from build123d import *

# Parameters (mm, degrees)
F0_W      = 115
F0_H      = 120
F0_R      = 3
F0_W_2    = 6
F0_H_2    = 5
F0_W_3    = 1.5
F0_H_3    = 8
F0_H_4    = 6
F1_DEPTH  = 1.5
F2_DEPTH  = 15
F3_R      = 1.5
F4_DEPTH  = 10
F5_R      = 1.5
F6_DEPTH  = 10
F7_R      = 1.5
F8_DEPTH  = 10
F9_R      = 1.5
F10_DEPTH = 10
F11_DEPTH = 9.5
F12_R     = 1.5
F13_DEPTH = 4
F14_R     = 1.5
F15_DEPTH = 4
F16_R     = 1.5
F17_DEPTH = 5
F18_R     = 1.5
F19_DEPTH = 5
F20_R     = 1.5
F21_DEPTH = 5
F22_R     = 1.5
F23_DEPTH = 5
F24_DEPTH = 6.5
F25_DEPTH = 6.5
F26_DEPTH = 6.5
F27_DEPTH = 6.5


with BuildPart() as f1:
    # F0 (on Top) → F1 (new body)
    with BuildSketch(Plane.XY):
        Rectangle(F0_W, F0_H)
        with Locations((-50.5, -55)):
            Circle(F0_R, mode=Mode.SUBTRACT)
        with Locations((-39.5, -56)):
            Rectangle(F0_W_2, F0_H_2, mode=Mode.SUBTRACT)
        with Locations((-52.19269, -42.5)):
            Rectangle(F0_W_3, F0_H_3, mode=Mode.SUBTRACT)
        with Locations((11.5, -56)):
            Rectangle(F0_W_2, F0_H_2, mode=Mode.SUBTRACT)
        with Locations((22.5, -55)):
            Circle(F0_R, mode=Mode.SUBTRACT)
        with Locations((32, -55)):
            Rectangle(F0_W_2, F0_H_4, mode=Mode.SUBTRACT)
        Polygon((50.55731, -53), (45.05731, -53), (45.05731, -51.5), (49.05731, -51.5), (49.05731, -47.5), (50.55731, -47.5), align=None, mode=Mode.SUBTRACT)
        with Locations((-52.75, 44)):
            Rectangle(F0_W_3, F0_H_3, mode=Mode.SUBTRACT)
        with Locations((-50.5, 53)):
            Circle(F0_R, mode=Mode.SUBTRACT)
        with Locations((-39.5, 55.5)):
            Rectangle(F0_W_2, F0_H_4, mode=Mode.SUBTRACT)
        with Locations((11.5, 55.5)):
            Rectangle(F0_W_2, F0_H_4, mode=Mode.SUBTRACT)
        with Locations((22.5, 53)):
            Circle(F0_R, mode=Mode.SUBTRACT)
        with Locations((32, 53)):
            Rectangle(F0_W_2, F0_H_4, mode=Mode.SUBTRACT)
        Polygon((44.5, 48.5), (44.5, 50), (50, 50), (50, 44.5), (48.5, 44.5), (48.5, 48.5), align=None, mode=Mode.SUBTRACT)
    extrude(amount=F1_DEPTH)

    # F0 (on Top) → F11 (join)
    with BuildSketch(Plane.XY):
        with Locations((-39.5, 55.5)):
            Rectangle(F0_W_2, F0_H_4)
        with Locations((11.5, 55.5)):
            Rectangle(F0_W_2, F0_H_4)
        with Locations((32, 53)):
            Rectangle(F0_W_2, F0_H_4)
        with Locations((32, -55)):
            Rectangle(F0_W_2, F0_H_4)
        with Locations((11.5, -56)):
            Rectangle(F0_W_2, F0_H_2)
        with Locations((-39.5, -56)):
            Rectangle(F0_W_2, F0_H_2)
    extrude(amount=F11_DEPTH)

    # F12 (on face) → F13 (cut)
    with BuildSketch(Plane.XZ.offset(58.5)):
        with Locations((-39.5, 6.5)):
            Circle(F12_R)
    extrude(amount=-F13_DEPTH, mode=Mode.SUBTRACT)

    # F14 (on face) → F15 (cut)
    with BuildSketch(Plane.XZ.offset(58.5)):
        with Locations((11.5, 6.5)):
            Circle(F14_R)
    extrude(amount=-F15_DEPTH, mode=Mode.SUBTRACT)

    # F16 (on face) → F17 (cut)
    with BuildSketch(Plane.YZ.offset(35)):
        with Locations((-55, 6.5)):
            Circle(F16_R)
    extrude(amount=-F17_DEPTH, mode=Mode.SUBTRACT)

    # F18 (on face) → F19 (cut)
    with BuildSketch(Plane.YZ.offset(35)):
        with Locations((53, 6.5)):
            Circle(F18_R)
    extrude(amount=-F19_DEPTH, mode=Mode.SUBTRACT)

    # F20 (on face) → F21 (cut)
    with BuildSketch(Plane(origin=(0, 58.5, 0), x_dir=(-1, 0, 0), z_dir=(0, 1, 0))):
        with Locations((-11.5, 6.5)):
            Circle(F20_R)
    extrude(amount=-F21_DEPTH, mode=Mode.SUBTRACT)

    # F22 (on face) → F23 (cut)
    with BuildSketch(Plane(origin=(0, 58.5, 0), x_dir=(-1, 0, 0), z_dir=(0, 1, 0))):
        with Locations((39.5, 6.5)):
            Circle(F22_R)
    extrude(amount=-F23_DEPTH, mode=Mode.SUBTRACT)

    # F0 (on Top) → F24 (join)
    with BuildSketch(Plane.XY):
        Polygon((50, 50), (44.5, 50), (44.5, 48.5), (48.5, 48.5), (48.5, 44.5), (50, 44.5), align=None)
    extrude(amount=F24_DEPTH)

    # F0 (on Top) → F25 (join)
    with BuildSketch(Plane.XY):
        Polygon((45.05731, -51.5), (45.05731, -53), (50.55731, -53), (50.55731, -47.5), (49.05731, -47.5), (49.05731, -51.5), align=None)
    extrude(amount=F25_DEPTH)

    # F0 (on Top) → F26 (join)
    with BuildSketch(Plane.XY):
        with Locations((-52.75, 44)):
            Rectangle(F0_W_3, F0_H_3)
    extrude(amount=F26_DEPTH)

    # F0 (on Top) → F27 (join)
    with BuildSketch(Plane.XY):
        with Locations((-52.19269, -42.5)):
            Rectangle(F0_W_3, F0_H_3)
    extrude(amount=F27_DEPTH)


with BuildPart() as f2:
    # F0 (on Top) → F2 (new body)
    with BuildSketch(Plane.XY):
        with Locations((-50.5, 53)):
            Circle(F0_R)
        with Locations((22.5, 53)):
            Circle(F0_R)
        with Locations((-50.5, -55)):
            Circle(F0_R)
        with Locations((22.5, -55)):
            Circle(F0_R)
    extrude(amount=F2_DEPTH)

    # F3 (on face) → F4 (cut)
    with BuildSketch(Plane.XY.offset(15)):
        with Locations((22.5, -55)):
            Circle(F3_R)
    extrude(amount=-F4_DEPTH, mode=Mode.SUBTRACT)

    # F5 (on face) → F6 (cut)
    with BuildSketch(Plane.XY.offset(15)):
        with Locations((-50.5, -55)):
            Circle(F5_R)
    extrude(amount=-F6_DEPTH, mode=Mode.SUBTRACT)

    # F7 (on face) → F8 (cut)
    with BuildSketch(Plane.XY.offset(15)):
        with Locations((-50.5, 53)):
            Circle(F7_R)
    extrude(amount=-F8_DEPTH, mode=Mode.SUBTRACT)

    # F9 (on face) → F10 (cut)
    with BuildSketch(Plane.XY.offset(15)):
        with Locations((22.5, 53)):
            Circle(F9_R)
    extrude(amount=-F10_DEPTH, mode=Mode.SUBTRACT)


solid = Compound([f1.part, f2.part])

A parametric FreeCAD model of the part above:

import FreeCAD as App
import Part
import Sketcher


def add_polygon(sketch, points):
    """Adds a closed chain of lines whose ends are joined by coincident constraints."""
    first, n = sketch.GeometryCount, len(points)
    for a, b in zip(points, points[1:] + points[:1]):
        sketch.addGeometry(Part.LineSegment(App.Vector(*a, 0), App.Vector(*b, 0)), False)
    for i in range(n):
        sketch.addConstraint(Sketcher.Constraint("Coincident", first + i, 2, first + (i + 1) % n, 1))

doc = App.newDocument("Part")
body = doc.addObject("PartDesign::Body", "Body")

sketch1 = body.newObject("Sketcher::SketchObject", "Sketch")
sketch1.AttachmentSupport = (doc.getObject("XY_Plane"), [""])
sketch1.MapMode = "FlatFace"
add_polygon(sketch1, [(-57.5, 60), (-57.5, -60), (57.5, -60), (57.5, 60)])
sketch1.addGeometry(Part.Circle(App.Vector(-50.5, -55, 0), App.Vector(0, 0, 1), 3), False)
add_polygon(sketch1, [(-36.5, -58.5), (-42.5, -58.5), (-42.5, -53.5), (-36.5, -53.5)])
add_polygon(sketch1, [(-51.4, -46.5), (-52.9, -46.5), (-52.9, -38.5), (-51.4, -38.5)])
add_polygon(sketch1, [(14.5, -58.5), (8.5, -58.5), (8.5, -53.5), (14.5, -53.5)])
sketch1.addGeometry(Part.Circle(App.Vector(22.5, -55, 0), App.Vector(0, 0, 1), 3), False)
add_polygon(sketch1, [(35, -58), (29, -58), (29, -52), (35, -52)])
add_polygon(sketch1, [(50.6, -47.5), (50.6, -53), (45.1, -53), (45.1, -51.5), (49.1, -51.5), (49.1, -47.5)])
add_polygon(sketch1, [(-52, 40), (-53.5, 40), (-53.5, 48), (-52, 48)])
sketch1.addGeometry(Part.Circle(App.Vector(-50.5, 53, 0), App.Vector(0, 0, 1), 3), False)
add_polygon(sketch1, [(-36.5, 52.5), (-42.5, 52.5), (-42.5, 58.5), (-36.5, 58.5)])
add_polygon(sketch1, [(14.5, 52.5), (8.5, 52.5), (8.5, 58.5), (14.5, 58.5)])
sketch1.addGeometry(Part.Circle(App.Vector(22.5, 53, 0), App.Vector(0, 0, 1), 3), False)
add_polygon(sketch1, [(35, 50), (29, 50), (29, 56), (35, 56)])
add_polygon(sketch1, [(48.5, 48.5), (44.5, 48.5), (44.5, 50), (50, 50), (50, 44.5), (48.5, 44.5)])
sketch1.addConstraint([
    Sketcher.Constraint("Vertical", 0),
    Sketcher.Constraint("Horizontal", 1),
    Sketcher.Constraint("Vertical", 2),
    Sketcher.Constraint("Horizontal", 3),
    Sketcher.Constraint("Horizontal", 5),
    Sketcher.Constraint("Vertical", 6),
    Sketcher.Constraint("Horizontal", 7),
    Sketcher.Constraint("Vertical", 8),
    Sketcher.Constraint("Horizontal", 9),
    Sketcher.Constraint("Vertical", 10),
    Sketcher.Constraint("Horizontal", 11),
    Sketcher.Constraint("Vertical", 12),
    Sketcher.Constraint("Horizontal", 13),
    Sketcher.Constraint("Vertical", 14),
    Sketcher.Constraint("Horizontal", 15),
    Sketcher.Constraint("Vertical", 16),
    Sketcher.Constraint("Horizontal", 18),
    Sketcher.Constraint("Vertical", 19),
    Sketcher.Constraint("Horizontal", 20),
    Sketcher.Constraint("Vertical", 21),
    Sketcher.Constraint("Vertical", 22),
    Sketcher.Constraint("Horizontal", 23),
    Sketcher.Constraint("Vertical", 24),
    Sketcher.Constraint("Horizontal", 25),
    Sketcher.Constraint("Vertical", 26),
    Sketcher.Constraint("Horizontal", 27),
    Sketcher.Constraint("Horizontal", 28),
    Sketcher.Constraint("Vertical", 29),
    Sketcher.Constraint("Horizontal", 30),
    Sketcher.Constraint("Vertical", 31),
    Sketcher.Constraint("Horizontal", 33),
    Sketcher.Constraint("Vertical", 34),
    Sketcher.Constraint("Horizontal", 35),
    Sketcher.Constraint("Vertical", 36),
    Sketcher.Constraint("Horizontal", 37),
    Sketcher.Constraint("Vertical", 38),
    Sketcher.Constraint("Horizontal", 39),
    Sketcher.Constraint("Vertical", 40),
    Sketcher.Constraint("Horizontal", 42),
    Sketcher.Constraint("Vertical", 43),
    Sketcher.Constraint("Horizontal", 44),
    Sketcher.Constraint("Vertical", 45),
    Sketcher.Constraint("Horizontal", 46),
    Sketcher.Constraint("Vertical", 47),
    Sketcher.Constraint("Horizontal", 48),
    Sketcher.Constraint("Vertical", 49),
    Sketcher.Constraint("Horizontal", 50),
    Sketcher.Constraint("Vertical", 51),
    Sketcher.Constraint("Equal", 4, 17),
    Sketcher.Constraint("Equal", 17, 32),
    Sketcher.Constraint("Equal", 32, 41),
    Sketcher.Constraint("Symmetric", 0, 2, 2, 2, -1, 1),
    Sketcher.Constraint("Symmetric", 5, 2, 34, 2, -1),
    Sketcher.Constraint("Symmetric", 13, 2, 38, 2, -1),
    Sketcher.Constraint("Horizontal", 4, 3, 17, 3),
    Sketcher.Constraint("Horizontal", 32, 3, 41, 3),
    Sketcher.Constraint("Horizontal", 8, 2, 13, 2),
    Sketcher.Constraint("Horizontal", 7, 2, 14, 2),
    Sketcher.Constraint("Horizontal", 36, 2, 37, 2),
    Sketcher.Constraint("Horizontal", 45, 2, 47, 2),
    Sketcher.Constraint("Vertical", 4, 3, 32, 3),
    Sketcher.Constraint("Vertical", 17, 3, 41, 3),
    Sketcher.Constraint("Vertical", 8, 2, 35, 2),
    Sketcher.Constraint("Vertical", 16, 2, 39, 2),
    Sketcher.Constraint("Vertical", 19, 2, 42, 2),
    Sketcher.Constraint("Vertical", 21, 2, 44, 2),
    Sketcher.Constraint("Equal", 7, 13),
    Sketcher.Constraint("Equal", 15, 18),
    Sketcher.Constraint("Equal", 11, 27),
    Sketcher.Constraint("Equal", 27, 28),
    Sketcher.Constraint("Equal", 25, 46),
    Sketcher.Constraint("Equal", 23, 48),
    Sketcher.Constraint("Equal", 44, 19),
    Sketcher.Constraint("Equal", 48, 22),
    Sketcher.Constraint("Equal", 50, 24),
    Sketcher.Constraint("Equal", 12, 29),
    Sketcher.Constraint("Equal", 21, 34),
    Sketcher.Constraint("Equal", 40, 43),
    Sketcher.Constraint("Equal", 24, 47),
    Sketcher.Constraint("Equal", 22, 49),
    Sketcher.Constraint("Diameter", 4, 6.0),
    Sketcher.Constraint("DistanceX", 1, 1, 1, 2, 115.0),
    Sketcher.Constraint("DistanceX", 5, 2, 5, 1, 6.0),
    Sketcher.Constraint("DistanceX", 25, 1, 25, 2, 4.0),
    Sketcher.Constraint("DistanceY", 0, 2, 0, 1, 120.0),
    Sketcher.Constraint("DistanceY", 6, 1, 6, 2, 5.0),
    Sketcher.Constraint("DistanceY", 10, 1, 10, 2, 8.0),
    Sketcher.Constraint("DistanceX", 9, 2, 9, 1, 1.5),
    Sketcher.Constraint("DistanceY", 4, 3, -1, 1, 55.0),
    Sketcher.Constraint("DistanceY", -1, 1, 32, 3, 53.0),
    Sketcher.Constraint("DistanceX", -1, 1, 18, 2, 29.0),
    Sketcher.Constraint("DistanceY", 18, 2, -1, 1, 58.0),
    Sketcher.Constraint("DistanceY", 22, 2, -1, 1, 53.0),
    Sketcher.Constraint("DistanceY", -1, 1, 28, 2, 40.0),
    Sketcher.Constraint("DistanceX", 30, 2, -1, 1, 52.0),
    Sketcher.Constraint("DistanceY", -1, 1, 42, 2, 50.0),
    Sketcher.Constraint("DistanceX", -1, 1, 48, 2, 50.0),
    Sketcher.Constraint("DistanceX", 4, 3, 17, 3, 73.0),
    Sketcher.Constraint("DistanceX", 0, 2, 4, 3, 7.0),
    Sketcher.Constraint("DistanceX", 4, 3, 5, 2, 8.0),
    Sketcher.Constraint("DistanceY", 6, 2, 9, 2, 7.0),
    Sketcher.Constraint("DistanceX", 13, 2, 17, 3, 14.0),
    Sketcher.Constraint("DistanceY", 5, 2, -1, 1, 58.5),
    Sketcher.Constraint("DistanceX", 9, 2, -1, 1, 52.94269),
    Sketcher.Constraint("DistanceX", -1, 1, 22, 2, 50.55731),
])
pad1 = body.newObject("PartDesign::Pad", "Pad")
pad1.Profile = sketch1
pad1.Length = 1.5

sketch2 = body.newObject("Sketcher::SketchObject", "Sketch001")
sketch2.AttachmentSupport = (doc.getObject("XY_Plane"), [""])
sketch2.MapMode = "FlatFace"
add_polygon(sketch2, [(-42, 58), (-42, 52), (-36, 52), (-36, 58)])
add_polygon(sketch2, [(8, 58), (8, 52), (14, 52), (14, 58)])
add_polygon(sketch2, [(29, 56), (29, 50), (35, 50), (35, 56)])
add_polygon(sketch2, [(29, -52), (29, -58), (35, -58), (35, -52)])
add_polygon(sketch2, [(8, -54), (8, -58), (14, -58), (14, -54)])
add_polygon(sketch2, [(-42, -54), (-42, -58), (-36, -58), (-36, -54)])
sketch2.addConstraint([
    Sketcher.Constraint("Vertical", 0),
    Sketcher.Constraint("Horizontal", 1),
    Sketcher.Constraint("Vertical", 2),
    Sketcher.Constraint("Horizontal", 3),
    Sketcher.Constraint("Vertical", 4),
    Sketcher.Constraint("Horizontal", 5),
    Sketcher.Constraint("Vertical", 6),
    Sketcher.Constraint("Horizontal", 7),
    Sketcher.Constraint("Vertical", 8),
    Sketcher.Constraint("Horizontal", 9),
    Sketcher.Constraint("Vertical", 10),
    Sketcher.Constraint("Horizontal", 11),
    Sketcher.Constraint("Vertical", 12),
    Sketcher.Constraint("Horizontal", 13),
    Sketcher.Constraint("Vertical", 14),
    Sketcher.Constraint("Horizontal", 15),
    Sketcher.Constraint("Vertical", 16),
    Sketcher.Constraint("Horizontal", 17),
    Sketcher.Constraint("Vertical", 18),
    Sketcher.Constraint("Horizontal", 19),
    Sketcher.Constraint("Vertical", 20),
    Sketcher.Constraint("Horizontal", 21),
    Sketcher.Constraint("Vertical", 22),
    Sketcher.Constraint("Horizontal", 23),
    Sketcher.Constraint("Symmetric", 7, 2, 16, 2, -1),
    Sketcher.Constraint("Symmetric", 3, 2, 20, 2, -1),
    Sketcher.Constraint("Horizontal", 1, 2, 4, 2),
    Sketcher.Constraint("Horizontal", 3, 2, 6, 2),
    Sketcher.Constraint("Horizontal", 19, 2, 22, 2),
    Sketcher.Constraint("Vertical", 11, 2, 12, 2),
    Sketcher.Constraint("Vertical", 10, 2, 13, 2),
    Sketcher.Constraint("Vertical", 6, 2, 17, 2),
    Sketcher.Constraint("Vertical", 2, 2, 21, 2),
    Sketcher.Constraint("Equal", 3, 5),
    Sketcher.Constraint("Equal", 7, 9),
    Sketcher.Constraint("Equal", 23, 0),
    Sketcher.Constraint("Equal", 6, 8),
    Sketcher.Constraint("Equal", 10, 12),
    Sketcher.Constraint("DistanceX", 1, 1, 1, 2, 6.0),
    Sketcher.Constraint("DistanceY", 16, 2, 16, 1, 5.0),
    Sketcher.Constraint("DistanceX", -1, 1, 8, 2, 29.0),
    Sketcher.Constraint("DistanceY", -1, 1, 8, 2, 50.0),
    Sketcher.Constraint("DistanceY", 12, 2, -1, 1, 58.0),
    Sketcher.Constraint("DistanceX", 1, 2, 4, 2, 45.0),
    Sketcher.Constraint("DistanceX", 0, 2, -1, 1, 42.5),
    Sketcher.Constraint("DistanceY", -1, 1, 0, 2, 52.5),
])
pad2 = body.newObject("PartDesign::Pad", "Pad001")
pad2.Profile = sketch2
pad2.Length = 9.5

sketch3 = body.newObject("Sketcher::SketchObject", "Sketch002")
sketch3.AttachmentSupport = (doc.getObject("XZ_Plane"), [""])
sketch3.MapMode = "FlatFace"
sketch3.AttachmentOffset = App.Placement(App.Vector(0, 0, 58.5), App.Rotation())
sketch3.addGeometry(Part.Circle(App.Vector(-39.5, 6.5, 0), App.Vector(0, 0, 1), 1.5), False)
sketch3.addConstraint([
    Sketcher.Constraint("Diameter", 0, 3.0),
    Sketcher.Constraint("DistanceX", 0, 3, -1, 1, 39.5),
    Sketcher.Constraint("DistanceY", -1, 1, 0, 3, 6.5),
])
pocket1 = body.newObject("PartDesign::Pocket", "Pocket")
pocket1.Profile = sketch3
pocket1.Length = 4

sketch4 = body.newObject("Sketcher::SketchObject", "Sketch003")
sketch4.AttachmentSupport = (doc.getObject("XZ_Plane"), [""])
sketch4.MapMode = "FlatFace"
sketch4.AttachmentOffset = App.Placement(App.Vector(0, 0, 58.5), App.Rotation())
sketch4.addGeometry(Part.Circle(App.Vector(11.5, 6.5, 0), App.Vector(0, 0, 1), 1.5), False)
sketch4.addConstraint([
    Sketcher.Constraint("Diameter", 0, 3.0),
    Sketcher.Constraint("DistanceX", -1, 1, 0, 3, 11.5),
    Sketcher.Constraint("DistanceY", -1, 1, 0, 3, 6.5),
])
pocket2 = body.newObject("PartDesign::Pocket", "Pocket001")
pocket2.Profile = sketch4
pocket2.Length = 4

sketch5 = body.newObject("Sketcher::SketchObject", "Sketch004")
sketch5.AttachmentSupport = (doc.getObject("YZ_Plane"), [""])
sketch5.MapMode = "FlatFace"
sketch5.AttachmentOffset = App.Placement(App.Vector(0, 0, 35), App.Rotation())
sketch5.addGeometry(Part.Circle(App.Vector(-55, 6.5, 0), App.Vector(0, 0, 1), 1.5), False)
sketch5.addConstraint([
    Sketcher.Constraint("Diameter", 0, 3.0),
    Sketcher.Constraint("DistanceX", 0, 3, -1, 1, 55.0),
    Sketcher.Constraint("DistanceY", -1, 1, 0, 3, 6.5),
])
pocket3 = body.newObject("PartDesign::Pocket", "Pocket002")
pocket3.Profile = sketch5
pocket3.Length = 5

sketch6 = body.newObject("Sketcher::SketchObject", "Sketch005")
sketch6.AttachmentSupport = (doc.getObject("YZ_Plane"), [""])
sketch6.MapMode = "FlatFace"
sketch6.AttachmentOffset = App.Placement(App.Vector(0, 0, 35), App.Rotation())
sketch6.addGeometry(Part.Circle(App.Vector(53, 6.5, 0), App.Vector(0, 0, 1), 1.5), False)
sketch6.addConstraint([
    Sketcher.Constraint("Diameter", 0, 3.0),
    Sketcher.Constraint("DistanceX", -1, 1, 0, 3, 53.0),
    Sketcher.Constraint("DistanceY", -1, 1, 0, 3, 6.5),
])
pocket4 = body.newObject("PartDesign::Pocket", "Pocket003")
pocket4.Profile = sketch6
pocket4.Length = 5

sketch7 = body.newObject("Sketcher::SketchObject", "Sketch006")
sketch7.AttachmentSupport = (doc.getObject("XZ_Plane"), [""])
sketch7.MapMode = "FlatFace"
sketch7.AttachmentOffset = App.Placement(App.Vector(0, 0, -58.5), App.Rotation())
sketch7.addGeometry(Part.Circle(App.Vector(11.5, 6.5, 0), App.Vector(0, 0, 1), 1.5), False)
sketch7.addConstraint([
    Sketcher.Constraint("Diameter", 0, 3.0),
    Sketcher.Constraint("DistanceX", -1, 1, 0, 3, 11.5),
    Sketcher.Constraint("DistanceY", -1, 1, 0, 3, 6.5),
])
pocket5 = body.newObject("PartDesign::Pocket", "Pocket004")
pocket5.Profile = sketch7
pocket5.Length = 5
pocket5.Reversed = True

sketch8 = body.newObject("Sketcher::SketchObject", "Sketch007")
sketch8.AttachmentSupport = (doc.getObject("XZ_Plane"), [""])
sketch8.MapMode = "FlatFace"
sketch8.AttachmentOffset = App.Placement(App.Vector(0, 0, -58.5), App.Rotation())
sketch8.addGeometry(Part.Circle(App.Vector(-39.5, 6.5, 0), App.Vector(0, 0, 1), 1.5), False)
sketch8.addConstraint([
    Sketcher.Constraint("Diameter", 0, 3.0),
    Sketcher.Constraint("DistanceX", 0, 3, -1, 1, 39.5),
    Sketcher.Constraint("DistanceY", -1, 1, 0, 3, 6.5),
])
pocket6 = body.newObject("PartDesign::Pocket", "Pocket005")
pocket6.Profile = sketch8
pocket6.Length = 5
pocket6.Reversed = True

sketch9 = body.newObject("Sketcher::SketchObject", "Sketch008")
sketch9.AttachmentSupport = (doc.getObject("XY_Plane"), [""])
sketch9.MapMode = "FlatFace"
add_polygon(sketch9, [(50, 50), (44.5, 50), (44.5, 48.5), (48.5, 48.5), (48.5, 44.5), (50, 44.5)])
sketch9.addConstraint([
    Sketcher.Constraint("Horizontal", 0),
    Sketcher.Constraint("Vertical", 1),
    Sketcher.Constraint("Horizontal", 2),
    Sketcher.Constraint("Vertical", 3),
    Sketcher.Constraint("Horizontal", 4),
    Sketcher.Constraint("Vertical", 5),
    Sketcher.Constraint("Equal", 4, 1),
    Sketcher.Constraint("Equal", 2, 3),
    Sketcher.Constraint("DistanceX", 2, 1, 2, 2, 4.0),
    Sketcher.Constraint("DistanceX", 0, 2, 0, 1, 5.5),
    Sketcher.Constraint("DistanceY", -1, 1, 0, 2, 50.0),
    Sketcher.Constraint("DistanceX", -1, 1, 4, 2, 50.0),
])
pad3 = body.newObject("PartDesign::Pad", "Pad002")
pad3.Profile = sketch9
pad3.Length = 6.5

sketch10 = body.newObject("Sketcher::SketchObject", "Sketch009")
sketch10.AttachmentSupport = (doc.getObject("XY_Plane"), [""])
sketch10.MapMode = "FlatFace"
add_polygon(sketch10, [(45.1, -51.5), (45.1, -53), (50.6, -53), (50.6, -47.5), (49.1, -47.5), (49.1, -51.5)])
sketch10.addConstraint([
    Sketcher.Constraint("Vertical", 0),
    Sketcher.Constraint("Horizontal", 1),
    Sketcher.Constraint("Vertical", 2),
    Sketcher.Constraint("Horizontal", 3),
    Sketcher.Constraint("Vertical", 4),
    Sketcher.Constraint("Horizontal", 5),
    Sketcher.Constraint("Equal", 3, 0),
    Sketcher.Constraint("Equal", 1, 2),
    Sketcher.Constraint("DistanceX", 5, 2, 5, 1, 4.0),
    Sketcher.Constraint("DistanceX", 1, 1, 1, 2, 5.5),
    Sketcher.Constraint("DistanceY", 0, 2, -1, 1, 53.0),
    Sketcher.Constraint("DistanceX", -1, 1, 0, 2, 45.05731),
])
pad4 = body.newObject("PartDesign::Pad", "Pad003")
pad4.Profile = sketch10
pad4.Length = 6.5

sketch11 = body.newObject("Sketcher::SketchObject", "Sketch010")
sketch11.AttachmentSupport = (doc.getObject("XY_Plane"), [""])
sketch11.MapMode = "FlatFace"
add_polygon(sketch11, [(-53.5, 48), (-53.5, 40), (-52, 40), (-52, 48)])
sketch11.addConstraint([
    Sketcher.Constraint("Vertical", 0),
    Sketcher.Constraint("Horizontal", 1),
    Sketcher.Constraint("Vertical", 2),
    Sketcher.Constraint("Horizontal", 3),
    Sketcher.Constraint("DistanceY", 0, 2, 0, 1, 8.0),
    Sketcher.Constraint("DistanceX", 1, 1, 1, 2, 1.5),
    Sketcher.Constraint("DistanceY", -1, 1, 0, 2, 40.0),
    Sketcher.Constraint("DistanceX", 1, 2, -1, 1, 52.0),
])
pad5 = body.newObject("PartDesign::Pad", "Pad004")
pad5.Profile = sketch11
pad5.Length = 6.5

sketch12 = body.newObject("Sketcher::SketchObject", "Sketch011")
sketch12.AttachmentSupport = (doc.getObject("XY_Plane"), [""])
sketch12.MapMode = "FlatFace"
add_polygon(sketch12, [(-52.9, -38.5), (-52.9, -46.5), (-51.4, -46.5), (-51.4, -38.5)])
sketch12.addConstraint([
    Sketcher.Constraint("Vertical", 0),
    Sketcher.Constraint("Horizontal", 1),
    Sketcher.Constraint("Vertical", 2),
    Sketcher.Constraint("Horizontal", 3),
    Sketcher.Constraint("DistanceY", 0, 2, 0, 1, 8.0),
    Sketcher.Constraint("DistanceX", 1, 1, 1, 2, 1.5),
    Sketcher.Constraint("DistanceY", 0, 2, -1, 1, 46.5),
    Sketcher.Constraint("DistanceX", 0, 2, -1, 1, 52.94269),
])
pad6 = body.newObject("PartDesign::Pad", "Pad005")
pad6.Profile = sketch12
pad6.Length = 6.5
body2 = doc.addObject("PartDesign::Body", "Body001")
body2.AllowCompound = True

sketch13 = body2.newObject("Sketcher::SketchObject", "Sketch012")
sketch13.AttachmentSupport = (doc.getObject("XY_Plane001"), [""])
sketch13.MapMode = "FlatFace"
sketch13.addGeometry([
    Part.Circle(App.Vector(-50.5, 53, 0), App.Vector(0, 0, 1), 3),
    Part.Circle(App.Vector(22.5, 53, 0), App.Vector(0, 0, 1), 3),
    Part.Circle(App.Vector(-50.5, -55, 0), App.Vector(0, 0, 1), 3),
    Part.Circle(App.Vector(22.5, -55, 0), App.Vector(0, 0, 1), 3),
], False)
sketch13.addConstraint([
    Sketcher.Constraint("Equal", 0, 1),
    Sketcher.Constraint("Equal", 1, 2),
    Sketcher.Constraint("Equal", 2, 3),
    Sketcher.Constraint("Horizontal", 0, 3, 1, 3),
    Sketcher.Constraint("Horizontal", 2, 3, 3, 3),
    Sketcher.Constraint("Vertical", 0, 3, 2, 3),
    Sketcher.Constraint("Vertical", 1, 3, 3, 3),
    Sketcher.Constraint("Diameter", 0, 6.0),
    Sketcher.Constraint("DistanceY", -1, 1, 0, 3, 53.0),
    Sketcher.Constraint("DistanceY", 2, 3, -1, 1, 55.0),
    Sketcher.Constraint("DistanceX", 0, 3, 1, 3, 73.0),
    Sketcher.Constraint("DistanceX", 0, 3, -1, 1, 50.5),
])
pad7 = body2.newObject("PartDesign::Pad", "Pad006")
pad7.Profile = sketch13
pad7.Length = 15

sketch14 = body2.newObject("Sketcher::SketchObject", "Sketch013")
sketch14.AttachmentSupport = (doc.getObject("XY_Plane001"), [""])
sketch14.MapMode = "FlatFace"
sketch14.AttachmentOffset = App.Placement(App.Vector(0, 0, 15), App.Rotation())
sketch14.addGeometry(Part.Circle(App.Vector(22.5, -55, 0), App.Vector(0, 0, 1), 1.5), False)
sketch14.addConstraint([
    Sketcher.Constraint("Diameter", 0, 3.0),
    Sketcher.Constraint("DistanceY", 0, 3, -1, 1, 55.0),
    Sketcher.Constraint("DistanceX", -1, 1, 0, 3, 22.5),
])
pocket7 = body2.newObject("PartDesign::Pocket", "Pocket006")
pocket7.Profile = sketch14
pocket7.Length = 10

sketch15 = body2.newObject("Sketcher::SketchObject", "Sketch014")
sketch15.AttachmentSupport = (doc.getObject("XY_Plane001"), [""])
sketch15.MapMode = "FlatFace"
sketch15.AttachmentOffset = App.Placement(App.Vector(0, 0, 15), App.Rotation())
sketch15.addGeometry(Part.Circle(App.Vector(-50.5, -55, 0), App.Vector(0, 0, 1), 1.5), False)
sketch15.addConstraint([
    Sketcher.Constraint("Diameter", 0, 3.0),
    Sketcher.Constraint("DistanceY", 0, 3, -1, 1, 55.0),
    Sketcher.Constraint("DistanceX", 0, 3, -1, 1, 50.5),
])
pocket8 = body2.newObject("PartDesign::Pocket", "Pocket007")
pocket8.Profile = sketch15
pocket8.Length = 10

sketch16 = body2.newObject("Sketcher::SketchObject", "Sketch015")
sketch16.AttachmentSupport = (doc.getObject("XY_Plane001"), [""])
sketch16.MapMode = "FlatFace"
sketch16.AttachmentOffset = App.Placement(App.Vector(0, 0, 15), App.Rotation())
sketch16.addGeometry(Part.Circle(App.Vector(-50.5, 53, 0), App.Vector(0, 0, 1), 1.5), False)
sketch16.addConstraint([
    Sketcher.Constraint("Diameter", 0, 3.0),
    Sketcher.Constraint("DistanceY", -1, 1, 0, 3, 53.0),
    Sketcher.Constraint("DistanceX", 0, 3, -1, 1, 50.5),
])
pocket9 = body2.newObject("PartDesign::Pocket", "Pocket008")
pocket9.Profile = sketch16
pocket9.Length = 10

sketch17 = body2.newObject("Sketcher::SketchObject", "Sketch016")
sketch17.AttachmentSupport = (doc.getObject("XY_Plane001"), [""])
sketch17.MapMode = "FlatFace"
sketch17.AttachmentOffset = App.Placement(App.Vector(0, 0, 15), App.Rotation())
sketch17.addGeometry(Part.Circle(App.Vector(22.5, 53, 0), App.Vector(0, 0, 1), 1.5), False)
sketch17.addConstraint([
    Sketcher.Constraint("Diameter", 0, 3.0),
    Sketcher.Constraint("DistanceY", -1, 1, 0, 3, 53.0),
    Sketcher.Constraint("DistanceX", -1, 1, 0, 3, 22.5),
])
pocket10 = body2.newObject("PartDesign::Pocket", "Pocket009")
pocket10.Profile = sketch17
pocket10.Length = 10

doc.recompute()
